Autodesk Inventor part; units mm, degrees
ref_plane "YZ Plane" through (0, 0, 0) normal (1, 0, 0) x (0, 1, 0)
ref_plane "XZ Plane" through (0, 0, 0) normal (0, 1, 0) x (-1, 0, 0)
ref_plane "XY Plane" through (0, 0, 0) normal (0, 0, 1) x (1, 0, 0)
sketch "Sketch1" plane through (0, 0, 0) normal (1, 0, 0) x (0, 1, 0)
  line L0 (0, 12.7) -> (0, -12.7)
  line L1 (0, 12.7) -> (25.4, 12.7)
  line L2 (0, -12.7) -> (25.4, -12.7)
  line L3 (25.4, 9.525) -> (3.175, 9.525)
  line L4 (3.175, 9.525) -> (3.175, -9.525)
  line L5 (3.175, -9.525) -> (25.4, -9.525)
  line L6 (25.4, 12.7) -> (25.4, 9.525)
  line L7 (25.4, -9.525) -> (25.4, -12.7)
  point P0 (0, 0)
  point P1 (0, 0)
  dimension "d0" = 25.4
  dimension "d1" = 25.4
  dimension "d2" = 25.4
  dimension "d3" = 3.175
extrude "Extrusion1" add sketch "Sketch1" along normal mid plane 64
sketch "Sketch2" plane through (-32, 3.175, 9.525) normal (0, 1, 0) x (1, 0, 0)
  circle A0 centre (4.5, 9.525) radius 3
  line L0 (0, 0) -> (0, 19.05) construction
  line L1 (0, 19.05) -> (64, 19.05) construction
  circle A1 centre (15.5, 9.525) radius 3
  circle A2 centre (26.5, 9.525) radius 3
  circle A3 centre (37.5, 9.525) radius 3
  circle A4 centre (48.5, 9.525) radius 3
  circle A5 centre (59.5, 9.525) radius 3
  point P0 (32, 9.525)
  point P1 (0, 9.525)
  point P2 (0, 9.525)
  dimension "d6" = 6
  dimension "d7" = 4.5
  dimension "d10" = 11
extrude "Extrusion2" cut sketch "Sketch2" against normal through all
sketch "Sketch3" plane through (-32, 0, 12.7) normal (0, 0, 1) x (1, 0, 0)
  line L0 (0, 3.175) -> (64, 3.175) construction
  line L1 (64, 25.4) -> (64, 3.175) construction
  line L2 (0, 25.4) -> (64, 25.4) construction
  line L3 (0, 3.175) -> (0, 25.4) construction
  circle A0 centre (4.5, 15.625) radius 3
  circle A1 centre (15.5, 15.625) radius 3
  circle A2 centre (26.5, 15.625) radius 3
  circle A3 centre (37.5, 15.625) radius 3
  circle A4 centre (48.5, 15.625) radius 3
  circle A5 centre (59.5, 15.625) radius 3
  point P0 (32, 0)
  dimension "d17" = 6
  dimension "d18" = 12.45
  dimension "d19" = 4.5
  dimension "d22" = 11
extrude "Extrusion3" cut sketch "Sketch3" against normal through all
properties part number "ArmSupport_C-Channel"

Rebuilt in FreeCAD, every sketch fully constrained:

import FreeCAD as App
import Part
import Sketcher
from FreeCAD import Vector
Q = App.Units.Quantity

doc = App.newDocument("Part")
body = doc.addObject("PartDesign::Body", "Body")

# Sketch on YZ plane
sketch1 = doc.addObject("Sketcher::SketchObject", "Sketch")
body.addObject(sketch1)
sketch1.AttachmentSupport = (doc.YZ_Plane, [""])
sketch1.MapMode = "FlatFace"
sketch1.addGeometry([
    Part.LineSegment(Vector(25.4, 12.7, 0), Vector(0, 12.7, 0)),  # 0
    Part.LineSegment(Vector(0, 12.7, 0), Vector(0, -12.7, 0)),  # 1
    Part.LineSegment(Vector(0, -12.7, 0), Vector(25.4, -12.7, 0)),  # 2
    Part.LineSegment(Vector(25.4, -12.7, 0), Vector(25.4, -9.5, 0)),  # 3
    Part.LineSegment(Vector(25.4, -9.5, 0), Vector(3.2, -9.5, 0)),  # 4
    Part.LineSegment(Vector(3.2, -9.5, 0), Vector(3.2, 9.5, 0)),  # 5
    Part.LineSegment(Vector(3.2, 9.5, 0), Vector(25.4, 9.5, 0)),  # 6
    Part.LineSegment(Vector(25.4, 9.5, 0), Vector(25.4, 12.7, 0)),  # 7
], False)
sketch1.addConstraint([
    Sketcher.Constraint("Coincident", 0, 2, 1, 1),
    Sketcher.Constraint("Coincident", 1, 2, 2, 1),
    Sketcher.Constraint("Coincident", 2, 2, 3, 1),
    Sketcher.Constraint("Coincident", 3, 2, 4, 1),
    Sketcher.Constraint("Coincident", 4, 2, 5, 1),
    Sketcher.Constraint("Coincident", 5, 2, 6, 1),
    Sketcher.Constraint("Coincident", 6, 2, 7, 1),
    Sketcher.Constraint("Coincident", 7, 2, 0, 1),
    Sketcher.Constraint("Horizontal", 0),
    Sketcher.Constraint("Vertical", 1),
    Sketcher.Constraint("Horizontal", 2),
    Sketcher.Constraint("Vertical", 3),
    Sketcher.Constraint("Horizontal", 4),
    Sketcher.Constraint("Vertical", 5),
    Sketcher.Constraint("Horizontal", 6),
    Sketcher.Constraint("Vertical", 7),
    Sketcher.Constraint("Symmetric", 0, 2, 1, 2, -1, 1),
    Sketcher.Constraint("Symmetric", 3, 2, 6, 2, -1),
    Sketcher.Constraint("Equal", 2, 1),
    Sketcher.Constraint("DistanceX", 0, 2, 0, 1, Q("1 in")),
    Sketcher.Constraint("DistanceY", 3, 1, 3, 2, Q("0.125 in")),
    Sketcher.Constraint("DistanceX", -1, 1, 4, 2, Q("0.125 in")),
])
pad1 = doc.addObject("PartDesign::Pad", "Pad")
body.addObject(pad1)
pad1.Profile = sketch1
pad1.Length = 64
pad1.Midplane = True

# Sketch on XZ plane
sketch2 = doc.addObject("Sketcher::SketchObject", "Sketch001")
body.addObject(sketch2)
sketch2.AttachmentSupport = (doc.XZ_Plane, [""])
sketch2.MapMode = "FlatFace"
sketch2.AttachmentOffset = App.Placement(Vector(0, 0, -0.125 * 25.4), App.Rotation())
sketch2.addGeometry([
    Part.Circle(Vector(-27.5, 0, 0), Vector(0, 0, 1), 3),  # 0
    Part.Circle(Vector(-16.5, 0, 0), Vector(0, 0, 1), 3),  # 1
    Part.Circle(Vector(-5.5, 0, 0), Vector(0, 0, 1), 3),  # 2
    Part.Circle(Vector(5.5, 0, 0), Vector(0, 0, 1), 3),  # 3
    Part.Circle(Vector(16.5, 0, 0), Vector(0, 0, 1), 3),  # 4
    Part.Circle(Vector(27.5, 0, 0), Vector(0, 0, 1), 3),  # 5
], False)
sketch2.addConstraint([
    Sketcher.Constraint("Equal", 0, 1),
    Sketcher.Constraint("Equal", 1, 2),
    Sketcher.Constraint("Equal", 2, 3),
    Sketcher.Constraint("Equal", 3, 4),
    Sketcher.Constraint("Equal", 4, 5),
    Sketcher.Constraint("Symmetric", 2, 3, 3, 3, -1, 1),
    Sketcher.Constraint("Symmetric", 1, 3, 4, 3, -1, 1),
    Sketcher.Constraint("Symmetric", 0, 3, 5, 3, -1, 1),
    Sketcher.Constraint("PointOnObject", 0, 3, -1),
    Sketcher.Constraint("PointOnObject", 1, 3, -1),
    Sketcher.Constraint("PointOnObject", 2, 3, -1),
    Sketcher.Constraint("Diameter", 0, 6.0),
    Sketcher.Constraint("DistanceX", 0, 3, 1, 3, 11.0),
    Sketcher.Constraint("DistanceX", 1, 3, 2, 3, 11.0),
    Sketcher.Constraint("DistanceX", 2, 3, 3, 3, 11.0),
])
pocket1 = doc.addObject("PartDesign::Pocket", "Pocket")
body.addObject(pocket1)
pocket1.Profile = sketch2
pocket1.Type = "ThroughAll"
pocket1.Reversed = True

# Sketch on XY plane
sketch3 = doc.addObject("Sketcher::SketchObject", "Sketch002")
body.addObject(sketch3)
sketch3.AttachmentSupport = (doc.XY_Plane, [""])
sketch3.MapMode = "FlatFace"
sketch3.AttachmentOffset = App.Placement(Vector(0, 0, 0.5 * 25.4), App.Rotation())
sketch3.addGeometry([
    Part.Circle(Vector(-27.5, 15.6, 0), Vector(0, 0, 1), 3),  # 0
    Part.Circle(Vector(-16.5, 15.6, 0), Vector(0, 0, 1), 3),  # 1
    Part.Circle(Vector(-5.5, 15.6, 0), Vector(0, 0, 1), 3),  # 2
    Part.Circle(Vector(5.5, 15.6, 0), Vector(0, 0, 1), 3),  # 3
    Part.Circle(Vector(16.5, 15.6, 0), Vector(0, 0, 1), 3),  # 4
    Part.Circle(Vector(27.5, 15.6, 0), Vector(0, 0, 1), 3),  # 5
], False)
sketch3.addConstraint([
    Sketcher.Constraint("Equal", 0, 1),
    Sketcher.Constraint("Equal", 1, 2),
    Sketcher.Constraint("Equal", 2, 3),
    Sketcher.Constraint("Equal", 3, 4),
    Sketcher.Constraint("Equal", 4, 5),
    Sketcher.Constraint("Symmetric", 2, 3, 3, 3, -2),
    Sketcher.Constraint("Symmetric", 1, 3, 4, 3, -2),
    Sketcher.Constraint("Symmetric", 0, 3, 5, 3, -2),
    Sketcher.Constraint("Horizontal", 0, 3, 1, 3),
    Sketcher.Constraint("Horizontal", 1, 3, 2, 3),
    Sketcher.Constraint("Diameter", 0, 6.0),
    Sketcher.Constraint("DistanceX", 0, 3, 1, 3, 11.0),
    Sketcher.Constraint("DistanceX", 1, 3, 2, 3, 11.0),
    Sketcher.Constraint("DistanceX", 2, 3, 3, 3, 11.0),
    Sketcher.Constraint("DistanceY", -1, 1, 0, 3, 15.625),
])
pocket2 = doc.addObject("PartDesign::Pocket", "Pocket001")
body.addObject(pocket2)
pocket2.Profile = sketch3
pocket2.Type = "ThroughAll"

doc.recompute()
